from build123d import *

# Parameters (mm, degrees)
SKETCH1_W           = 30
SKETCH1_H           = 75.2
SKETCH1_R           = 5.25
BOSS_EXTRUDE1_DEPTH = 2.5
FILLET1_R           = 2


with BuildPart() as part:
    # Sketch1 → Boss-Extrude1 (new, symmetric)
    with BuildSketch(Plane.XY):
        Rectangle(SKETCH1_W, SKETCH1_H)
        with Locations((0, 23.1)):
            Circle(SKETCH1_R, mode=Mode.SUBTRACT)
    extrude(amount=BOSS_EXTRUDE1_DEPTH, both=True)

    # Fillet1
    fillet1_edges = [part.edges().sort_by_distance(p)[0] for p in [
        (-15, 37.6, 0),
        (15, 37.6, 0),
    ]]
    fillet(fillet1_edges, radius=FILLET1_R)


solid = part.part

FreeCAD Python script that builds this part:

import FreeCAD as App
import Part
import Sketcher

V = App.Vector
Q = App.Units.Quantity


def edges_at(feature, points):
    """Names of the edges that pass closest to the given points."""
    edges = feature.Shape.Edges
    near = lambda p: min(range(len(edges)), key=lambda i: edges[i].distToShape(Part.Vertex(*p))[0])
    return sorted({f"Edge{near(p) + 1}" for p in points})

doc = App.newDocument("Part")
params = doc.addObject("Spreadsheet::Sheet", "Params")
for row, (alias, value) in enumerate([
    ("sketch1_diameter", "10.5 mm"),
    ("sketch1_width", "30 mm"),
    ("sketch1_height", "75.2 mm"),
    ("pad1_length", "5 mm"),
    ("fillet_radius", "2 mm"),
], start=1):
    params.set(f"A{row}", alias)
    params.set(f"B{row}", "=" + value)
    params.setAlias(f"B{row}", alias)

body = doc.addObject("PartDesign::Body", "Body")

sketch1 = body.newObject("Sketcher::SketchObject", "Sketch")
sketch1.AttachmentSupport = (doc.getObject("XY_Plane"), [""])
sketch1.MapMode = "FlatFace"
sketch1.addGeometry([
    Part.LineSegment(V(-15, 38, 0), V(-15, -38, 0)),
    Part.LineSegment(V(-15, -38, 0), V(15, -38, 0)),
    Part.LineSegment(V(15, -38, 0), V(15, 38, 0)),
    Part.LineSegment(V(15, 38, 0), V(-15, 38, 0)),
    Part.Circle(V(0, 23, 0), V(0, 0, 1), 5),
], False)
sketch1.addConstraint([
    Sketcher.Constraint("Coincident", 0, 2, 1, 1),
    Sketcher.Constraint("Coincident", 1, 2, 2, 1),
    Sketcher.Constraint("Coincident", 2, 2, 3, 1),
    Sketcher.Constraint("Coincident", 3, 2, 0, 1),
    Sketcher.Constraint("Vertical", 0),
    Sketcher.Constraint("Horizontal", 1),
    Sketcher.Constraint("Vertical", 2),
    Sketcher.Constraint("Horizontal", 3),
    Sketcher.Constraint("Symmetric", 0, 2, 2, 2, -1, 1),
    Sketcher.Constraint("PointOnObject", 4, 3, -2),
    Sketcher.Constraint("Diameter", 4, Q("10.5 mm")),
    Sketcher.Constraint("DistanceX", 1, 1, 1, 2, Q("30 mm")),
    Sketcher.Constraint("DistanceY", 0, 2, 0, 1, Q("75.2 mm")),
    Sketcher.Constraint("DistanceY", -1, 1, 4, 3, Q("23.1 mm")),
])
sketch1.setExpression("Constraints[10]", "Params.sketch1_diameter")
sketch1.setExpression("Constraints[11]", "Params.sketch1_width")
sketch1.setExpression("Constraints[12]", "Params.sketch1_height")
pad1 = body.newObject("PartDesign::Pad", "Pad")
pad1.Profile = sketch1
pad1.setExpression("Length", "Params.pad1_length")
pad1.Midplane = True
doc.recompute()

fillet = body.newObject("PartDesign::Fillet", "Fillet")
fillet.Base = (pad1, edges_at(pad1, [(-15, 37.6, 0), (15, 37.6, 0)]))
fillet.setExpression("Radius", "Params.fillet_radius")

doc.recompute()
